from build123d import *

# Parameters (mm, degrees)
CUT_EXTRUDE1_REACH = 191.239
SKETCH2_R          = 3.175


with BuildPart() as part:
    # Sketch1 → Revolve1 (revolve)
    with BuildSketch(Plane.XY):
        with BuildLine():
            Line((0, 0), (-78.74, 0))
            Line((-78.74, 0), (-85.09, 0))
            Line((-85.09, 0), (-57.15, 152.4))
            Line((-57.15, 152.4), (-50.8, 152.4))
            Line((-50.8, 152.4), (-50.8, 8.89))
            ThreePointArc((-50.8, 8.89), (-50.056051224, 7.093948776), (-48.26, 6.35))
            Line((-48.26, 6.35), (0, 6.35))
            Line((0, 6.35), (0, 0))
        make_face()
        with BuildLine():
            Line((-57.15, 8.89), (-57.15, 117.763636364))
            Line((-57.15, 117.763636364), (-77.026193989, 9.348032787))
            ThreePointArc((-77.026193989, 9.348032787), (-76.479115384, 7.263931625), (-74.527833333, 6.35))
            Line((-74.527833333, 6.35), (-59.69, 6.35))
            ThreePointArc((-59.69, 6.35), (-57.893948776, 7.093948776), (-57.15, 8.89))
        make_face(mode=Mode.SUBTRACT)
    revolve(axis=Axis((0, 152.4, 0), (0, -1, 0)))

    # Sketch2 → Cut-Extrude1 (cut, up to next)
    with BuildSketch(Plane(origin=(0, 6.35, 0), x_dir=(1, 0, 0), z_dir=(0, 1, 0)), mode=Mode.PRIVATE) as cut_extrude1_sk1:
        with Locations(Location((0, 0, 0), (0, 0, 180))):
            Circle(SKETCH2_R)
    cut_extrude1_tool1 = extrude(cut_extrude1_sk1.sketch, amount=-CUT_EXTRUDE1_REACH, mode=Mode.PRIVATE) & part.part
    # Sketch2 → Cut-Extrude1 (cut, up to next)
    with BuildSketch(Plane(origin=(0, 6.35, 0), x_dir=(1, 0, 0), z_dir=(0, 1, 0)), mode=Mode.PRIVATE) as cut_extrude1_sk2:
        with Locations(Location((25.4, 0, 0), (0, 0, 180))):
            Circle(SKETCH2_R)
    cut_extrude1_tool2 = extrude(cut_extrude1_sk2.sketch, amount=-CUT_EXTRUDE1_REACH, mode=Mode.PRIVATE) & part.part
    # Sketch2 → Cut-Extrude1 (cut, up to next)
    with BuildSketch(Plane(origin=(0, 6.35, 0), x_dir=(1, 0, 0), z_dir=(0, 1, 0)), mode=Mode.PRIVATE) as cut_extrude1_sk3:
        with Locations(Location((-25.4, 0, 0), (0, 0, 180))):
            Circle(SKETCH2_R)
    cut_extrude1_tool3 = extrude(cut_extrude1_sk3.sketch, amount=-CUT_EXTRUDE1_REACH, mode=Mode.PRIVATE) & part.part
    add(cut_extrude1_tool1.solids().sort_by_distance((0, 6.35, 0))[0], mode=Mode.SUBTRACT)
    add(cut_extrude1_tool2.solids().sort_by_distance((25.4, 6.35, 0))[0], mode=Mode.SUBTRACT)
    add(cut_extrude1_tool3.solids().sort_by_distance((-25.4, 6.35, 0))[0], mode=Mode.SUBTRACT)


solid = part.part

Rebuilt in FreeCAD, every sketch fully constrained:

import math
import FreeCAD as App
import Part
import Sketcher

V = App.Vector
Q = App.Units.Quantity

doc = App.newDocument("Part")
body = doc.addObject("PartDesign::Body", "Body")

# Sketch on XY plane
sketch1 = body.newObject("Sketcher::SketchObject", "Sketch")
sketch1.AttachmentSupport = (doc.getObject("XY_Plane"), [""])
sketch1.MapMode = "FlatFace"
sketch1.addGeometry(Part.LineSegment(V(-85.09, 0, 0), V(0, 0, 0)), False)
sketch1.addGeometry(Part.LineSegment(V(0, 0, 0), V(0, 6.35, 0)), False)
sketch1.addGeometry(Part.LineSegment(V(0, 6.35, 0), V(-48.26, 6.35, 0)), False)
sketch1.addGeometry(Part.ArcOfCircle(Part.Circle(V(-48.26, 8.89, 0), V(0, 0, 1), 2.54), math.radians(-180), math.radians(-90)), False)
sketch1.addGeometry(Part.LineSegment(V(-50.8, 8.89, 0), V(-50.8, 152.4, 0)), False)
sketch1.addGeometry(Part.LineSegment(V(-50.8, 152.4, 0), V(-57.15, 152.4, 0)), False)
sketch1.addGeometry(Part.LineSegment(V(-57.15, 152.4, 0), V(-85.09, 0, 0)), False)
sketch1.addGeometry(Part.ArcOfCircle(Part.Circle(V(-59.69, 8.89, 0), V(0, 0, 1), 2.54), math.radians(-90), math.radians(0)), False)
sketch1.addGeometry(Part.LineSegment(V(-59.69, 6.35, 0), V(-74.527833, 6.35, 0)), False)
sketch1.addGeometry(Part.ArcOfCircle(Part.Circle(V(-74.527833, 8.89, 0), V(0, 0, 1), 2.54), math.radians(169.611142), math.radians(270)), False)
sketch1.addGeometry(Part.LineSegment(V(-77.026194, 9.348033, 0), V(-57.15, 117.763636, 0)), False)
sketch1.addGeometry(Part.LineSegment(V(-57.15, 117.763636, 0), V(-57.15, 8.89, 0)), False)
sketch1.addConstraint(Sketcher.Constraint("Coincident", 0, 2, 1, 1))
sketch1.addConstraint(Sketcher.Constraint("Coincident", 1, 2, 2, 1))
sketch1.addConstraint(Sketcher.Constraint("Tangent", 2, 2, 3, 2))
sketch1.addConstraint(Sketcher.Constraint("Tangent", 3, 1, 4, 1))
sketch1.addConstraint(Sketcher.Constraint("Coincident", 4, 2, 5, 1))
sketch1.addConstraint(Sketcher.Constraint("Coincident", 5, 2, 6, 1))
sketch1.addConstraint(Sketcher.Constraint("Coincident", 6, 2, 0, 1))
sketch1.addConstraint(Sketcher.Constraint("Tangent", 7, 1, 8, 1))
sketch1.addConstraint(Sketcher.Constraint("Tangent", 8, 2, 9, 2))
sketch1.addConstraint(Sketcher.Constraint("Tangent", 9, 1, 10, 1))
sketch1.addConstraint(Sketcher.Constraint("Coincident", 10, 2, 11, 1))
sketch1.addConstraint(Sketcher.Constraint("Tangent", 11, 2, 7, 2))
sketch1.addConstraint(Sketcher.Constraint("Horizontal", 0))
sketch1.addConstraint(Sketcher.Constraint("Vertical", 1))
sketch1.addConstraint(Sketcher.Constraint("Horizontal", 2))
sketch1.addConstraint(Sketcher.Constraint("Vertical", 4))
sketch1.addConstraint(Sketcher.Constraint("Horizontal", 5))
sketch1.addConstraint(Sketcher.Constraint("Horizontal", 8))
sketch1.addConstraint(Sketcher.Constraint("Vertical", 11))
sketch1.addConstraint(Sketcher.Constraint("Coincident", 0, 2, -1, 1))
sketch1.addConstraint(Sketcher.Constraint("Equal", 3, 7))
sketch1.addConstraint(Sketcher.Constraint("Equal", 7, 9))
sketch1.addConstraint(Sketcher.Constraint("Parallel", 6, 10))
sketch1.addConstraint(Sketcher.Constraint("Horizontal", 3, 3, 7, 3))
sketch1.addConstraint(Sketcher.Constraint("Vertical", 5, 2, 10, 2))
sketch1.addConstraint(Sketcher.Constraint("Equal", 5, 1))
sketch1.addConstraint(Sketcher.Constraint("Radius", 3, Q("0.1 in")))
sketch1.addConstraint(Sketcher.Constraint("DistanceX", 2, 2, 2, 1, Q("1.9 in")))
sketch1.addConstraint(Sketcher.Constraint("DistanceY", -1, 1, 4, 2, Q("6 in")))
sketch1.addConstraint(Sketcher.Constraint("DistanceX", 6, 2, 7, 3, Q("1 in")))
sketch1.addConstraint(Sketcher.Constraint("DistanceX", 0, 1, 0, 2, Q("3.35 in")))
sketch1.addConstraint(Sketcher.Constraint("Distance", 10, 110.22253))
revolution = body.newObject("PartDesign::Revolution", "Revolution")
revolution.Profile = sketch1
revolution.ReferenceAxis = (sketch1, ["V_Axis"])
revolution.Angle = 360

# Sketch on XZ plane
sketch2 = body.newObject("Sketcher::SketchObject", "Sketch001")
sketch2.AttachmentSupport = (doc.getObject("XZ_Plane"), [""])
sketch2.MapMode = "FlatFace"
sketch2.AttachmentOffset = App.Placement(V(0, 0, -0.25 * 25.4), App.Rotation())
sketch2.addGeometry(Part.Circle(V(0, 0, 0), V(0, 0, 1), 3.175), False)
sketch2.addConstraint(Sketcher.Constraint("Coincident", 0, 3, -1, 1))
sketch2.addConstraint(Sketcher.Constraint("Diameter", 0, Q("0.25 in")))
pocket1 = body.newObject("PartDesign::Pocket", "Pocket")
pocket1.Profile = sketch2
pocket1.Type = "UpToFirst"
pocket1.Reversed = True

# Sketch on XZ plane
sketch3 = body.newObject("Sketcher::SketchObject", "Sketch002")
sketch3.AttachmentSupport = (doc.getObject("XZ_Plane"), [""])
sketch3.MapMode = "FlatFace"
sketch3.AttachmentOffset = App.Placement(V(0, 0, -0.25 * 25.4), App.Rotation())
sketch3.addGeometry(Part.Circle(V(25.4, 0, 0), V(0, 0, 1), 3.175), False)
sketch3.addConstraint(Sketcher.Constraint("PointOnObject", 0, 3, -1))
sketch3.addConstraint(Sketcher.Constraint("Diameter", 0, Q("0.25 in")))
sketch3.addConstraint(Sketcher.Constraint("DistanceX", -1, 1, 0, 3, Q("1 in")))
pocket2 = body.newObject("PartDesign::Pocket", "Pocket001")
pocket2.Profile = sketch3
pocket2.Type = "UpToFirst"
pocket2.Reversed = True

# Sketch on XZ plane
sketch4 = body.newObject("Sketcher::SketchObject", "Sketch003")
sketch4.AttachmentSupport = (doc.getObject("XZ_Plane"), [""])
sketch4.MapMode = "FlatFace"
sketch4.AttachmentOffset = App.Placement(V(0, 0, -0.25 * 25.4), App.Rotation())
sketch4.addGeometry(Part.Circle(V(-25.4, 0, 0), V(0, 0, 1), 3.175), False)
sketch4.addConstraint(Sketcher.Constraint("PointOnObject", 0, 3, -1))
sketch4.addConstraint(Sketcher.Constraint("Diameter", 0, Q("0.25 in")))
sketch4.addConstraint(Sketcher.Constraint("DistanceX", 0, 3, -1, 1, Q("1 in")))
pocket3 = body.newObject("PartDesign::Pocket", "Pocket002")
pocket3.Profile = sketch4
pocket3.Type = "UpToFirst"
pocket3.Reversed = True

doc.recompute()
